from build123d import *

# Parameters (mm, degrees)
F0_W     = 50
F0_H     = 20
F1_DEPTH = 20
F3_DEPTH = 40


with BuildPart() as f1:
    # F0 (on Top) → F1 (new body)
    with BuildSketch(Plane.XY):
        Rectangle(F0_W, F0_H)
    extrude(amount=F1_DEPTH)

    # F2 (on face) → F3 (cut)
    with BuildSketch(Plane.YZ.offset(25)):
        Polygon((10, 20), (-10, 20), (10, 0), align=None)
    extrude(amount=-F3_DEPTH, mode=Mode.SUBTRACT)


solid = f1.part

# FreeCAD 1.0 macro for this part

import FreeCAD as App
import Part
import Sketcher

V = App.Vector
Q = App.Units.Quantity


def add_polygon(sketch, points):
    """Adds a closed chain of lines whose ends are joined by coincident constraints."""
    first, n = sketch.GeometryCount, len(points)
    for a, b in zip(points, points[1:] + points[:1]):
        sketch.addGeometry(Part.LineSegment(App.Vector(*a, 0), App.Vector(*b, 0)), False)
    for i in range(n):
        sketch.addConstraint(Sketcher.Constraint("Coincident", first + i, 2, first + (i + 1) % n, 1))

doc = App.newDocument("Part")
body = doc.addObject("PartDesign::Body", "Body")

# Sketch on XY plane
sketch1 = body.newObject("Sketcher::SketchObject", "Sketch")
sketch1.AttachmentSupport = (doc.getObject("XY_Plane"), [""])
sketch1.MapMode = "FlatFace"
add_polygon(sketch1, [(-25, 10), (-25, -10), (25, -10), (25, 10)])  # lines 0-3
sketch1.addConstraint(Sketcher.Constraint("Vertical", 0))
sketch1.addConstraint(Sketcher.Constraint("Horizontal", 1))
sketch1.addConstraint(Sketcher.Constraint("Vertical", 2))
sketch1.addConstraint(Sketcher.Constraint("Horizontal", 3))
sketch1.addConstraint(Sketcher.Constraint("Symmetric", 0, 2, 2, 2, -1, 1))
sketch1.addConstraint(Sketcher.Constraint("DistanceX", 1, 1, 1, 2, Q("50 mm")))
sketch1.addConstraint(Sketcher.Constraint("DistanceY", 0, 2, 0, 1, Q("20 mm")))
pad1 = body.newObject("PartDesign::Pad", "Pad")
pad1.Profile = sketch1
pad1.Length = 20

# Sketch on YZ plane
sketch2 = body.newObject("Sketcher::SketchObject", "Sketch001")
sketch2.AttachmentSupport = (doc.getObject("YZ_Plane"), [""])
sketch2.MapMode = "FlatFace"
sketch2.AttachmentOffset = App.Placement(V(0, 0, 25), App.Rotation())
add_polygon(sketch2, [(10, 20), (-10, 20), (10, 0)])  # lines 0-2
sketch2.addConstraint(Sketcher.Constraint("Horizontal", 0))
sketch2.addConstraint(Sketcher.Constraint("Vertical", 2))
sketch2.addConstraint(Sketcher.Constraint("PointOnObject", 1, 2, -1))
sketch2.addConstraint(Sketcher.Constraint("Equal", 0, 2))
sketch2.addConstraint(Sketcher.Constraint("DistanceX", 0, 2, 0, 1, Q("20 mm")))
sketch2.addConstraint(Sketcher.Constraint("DistanceX", 0, 2, -1, 1, Q("10 mm")))
pocket1 = body.newObject("PartDesign::Pocket", "Pocket")
pocket1.Profile = sketch2
pocket1.Length = 40

doc.recompute()
